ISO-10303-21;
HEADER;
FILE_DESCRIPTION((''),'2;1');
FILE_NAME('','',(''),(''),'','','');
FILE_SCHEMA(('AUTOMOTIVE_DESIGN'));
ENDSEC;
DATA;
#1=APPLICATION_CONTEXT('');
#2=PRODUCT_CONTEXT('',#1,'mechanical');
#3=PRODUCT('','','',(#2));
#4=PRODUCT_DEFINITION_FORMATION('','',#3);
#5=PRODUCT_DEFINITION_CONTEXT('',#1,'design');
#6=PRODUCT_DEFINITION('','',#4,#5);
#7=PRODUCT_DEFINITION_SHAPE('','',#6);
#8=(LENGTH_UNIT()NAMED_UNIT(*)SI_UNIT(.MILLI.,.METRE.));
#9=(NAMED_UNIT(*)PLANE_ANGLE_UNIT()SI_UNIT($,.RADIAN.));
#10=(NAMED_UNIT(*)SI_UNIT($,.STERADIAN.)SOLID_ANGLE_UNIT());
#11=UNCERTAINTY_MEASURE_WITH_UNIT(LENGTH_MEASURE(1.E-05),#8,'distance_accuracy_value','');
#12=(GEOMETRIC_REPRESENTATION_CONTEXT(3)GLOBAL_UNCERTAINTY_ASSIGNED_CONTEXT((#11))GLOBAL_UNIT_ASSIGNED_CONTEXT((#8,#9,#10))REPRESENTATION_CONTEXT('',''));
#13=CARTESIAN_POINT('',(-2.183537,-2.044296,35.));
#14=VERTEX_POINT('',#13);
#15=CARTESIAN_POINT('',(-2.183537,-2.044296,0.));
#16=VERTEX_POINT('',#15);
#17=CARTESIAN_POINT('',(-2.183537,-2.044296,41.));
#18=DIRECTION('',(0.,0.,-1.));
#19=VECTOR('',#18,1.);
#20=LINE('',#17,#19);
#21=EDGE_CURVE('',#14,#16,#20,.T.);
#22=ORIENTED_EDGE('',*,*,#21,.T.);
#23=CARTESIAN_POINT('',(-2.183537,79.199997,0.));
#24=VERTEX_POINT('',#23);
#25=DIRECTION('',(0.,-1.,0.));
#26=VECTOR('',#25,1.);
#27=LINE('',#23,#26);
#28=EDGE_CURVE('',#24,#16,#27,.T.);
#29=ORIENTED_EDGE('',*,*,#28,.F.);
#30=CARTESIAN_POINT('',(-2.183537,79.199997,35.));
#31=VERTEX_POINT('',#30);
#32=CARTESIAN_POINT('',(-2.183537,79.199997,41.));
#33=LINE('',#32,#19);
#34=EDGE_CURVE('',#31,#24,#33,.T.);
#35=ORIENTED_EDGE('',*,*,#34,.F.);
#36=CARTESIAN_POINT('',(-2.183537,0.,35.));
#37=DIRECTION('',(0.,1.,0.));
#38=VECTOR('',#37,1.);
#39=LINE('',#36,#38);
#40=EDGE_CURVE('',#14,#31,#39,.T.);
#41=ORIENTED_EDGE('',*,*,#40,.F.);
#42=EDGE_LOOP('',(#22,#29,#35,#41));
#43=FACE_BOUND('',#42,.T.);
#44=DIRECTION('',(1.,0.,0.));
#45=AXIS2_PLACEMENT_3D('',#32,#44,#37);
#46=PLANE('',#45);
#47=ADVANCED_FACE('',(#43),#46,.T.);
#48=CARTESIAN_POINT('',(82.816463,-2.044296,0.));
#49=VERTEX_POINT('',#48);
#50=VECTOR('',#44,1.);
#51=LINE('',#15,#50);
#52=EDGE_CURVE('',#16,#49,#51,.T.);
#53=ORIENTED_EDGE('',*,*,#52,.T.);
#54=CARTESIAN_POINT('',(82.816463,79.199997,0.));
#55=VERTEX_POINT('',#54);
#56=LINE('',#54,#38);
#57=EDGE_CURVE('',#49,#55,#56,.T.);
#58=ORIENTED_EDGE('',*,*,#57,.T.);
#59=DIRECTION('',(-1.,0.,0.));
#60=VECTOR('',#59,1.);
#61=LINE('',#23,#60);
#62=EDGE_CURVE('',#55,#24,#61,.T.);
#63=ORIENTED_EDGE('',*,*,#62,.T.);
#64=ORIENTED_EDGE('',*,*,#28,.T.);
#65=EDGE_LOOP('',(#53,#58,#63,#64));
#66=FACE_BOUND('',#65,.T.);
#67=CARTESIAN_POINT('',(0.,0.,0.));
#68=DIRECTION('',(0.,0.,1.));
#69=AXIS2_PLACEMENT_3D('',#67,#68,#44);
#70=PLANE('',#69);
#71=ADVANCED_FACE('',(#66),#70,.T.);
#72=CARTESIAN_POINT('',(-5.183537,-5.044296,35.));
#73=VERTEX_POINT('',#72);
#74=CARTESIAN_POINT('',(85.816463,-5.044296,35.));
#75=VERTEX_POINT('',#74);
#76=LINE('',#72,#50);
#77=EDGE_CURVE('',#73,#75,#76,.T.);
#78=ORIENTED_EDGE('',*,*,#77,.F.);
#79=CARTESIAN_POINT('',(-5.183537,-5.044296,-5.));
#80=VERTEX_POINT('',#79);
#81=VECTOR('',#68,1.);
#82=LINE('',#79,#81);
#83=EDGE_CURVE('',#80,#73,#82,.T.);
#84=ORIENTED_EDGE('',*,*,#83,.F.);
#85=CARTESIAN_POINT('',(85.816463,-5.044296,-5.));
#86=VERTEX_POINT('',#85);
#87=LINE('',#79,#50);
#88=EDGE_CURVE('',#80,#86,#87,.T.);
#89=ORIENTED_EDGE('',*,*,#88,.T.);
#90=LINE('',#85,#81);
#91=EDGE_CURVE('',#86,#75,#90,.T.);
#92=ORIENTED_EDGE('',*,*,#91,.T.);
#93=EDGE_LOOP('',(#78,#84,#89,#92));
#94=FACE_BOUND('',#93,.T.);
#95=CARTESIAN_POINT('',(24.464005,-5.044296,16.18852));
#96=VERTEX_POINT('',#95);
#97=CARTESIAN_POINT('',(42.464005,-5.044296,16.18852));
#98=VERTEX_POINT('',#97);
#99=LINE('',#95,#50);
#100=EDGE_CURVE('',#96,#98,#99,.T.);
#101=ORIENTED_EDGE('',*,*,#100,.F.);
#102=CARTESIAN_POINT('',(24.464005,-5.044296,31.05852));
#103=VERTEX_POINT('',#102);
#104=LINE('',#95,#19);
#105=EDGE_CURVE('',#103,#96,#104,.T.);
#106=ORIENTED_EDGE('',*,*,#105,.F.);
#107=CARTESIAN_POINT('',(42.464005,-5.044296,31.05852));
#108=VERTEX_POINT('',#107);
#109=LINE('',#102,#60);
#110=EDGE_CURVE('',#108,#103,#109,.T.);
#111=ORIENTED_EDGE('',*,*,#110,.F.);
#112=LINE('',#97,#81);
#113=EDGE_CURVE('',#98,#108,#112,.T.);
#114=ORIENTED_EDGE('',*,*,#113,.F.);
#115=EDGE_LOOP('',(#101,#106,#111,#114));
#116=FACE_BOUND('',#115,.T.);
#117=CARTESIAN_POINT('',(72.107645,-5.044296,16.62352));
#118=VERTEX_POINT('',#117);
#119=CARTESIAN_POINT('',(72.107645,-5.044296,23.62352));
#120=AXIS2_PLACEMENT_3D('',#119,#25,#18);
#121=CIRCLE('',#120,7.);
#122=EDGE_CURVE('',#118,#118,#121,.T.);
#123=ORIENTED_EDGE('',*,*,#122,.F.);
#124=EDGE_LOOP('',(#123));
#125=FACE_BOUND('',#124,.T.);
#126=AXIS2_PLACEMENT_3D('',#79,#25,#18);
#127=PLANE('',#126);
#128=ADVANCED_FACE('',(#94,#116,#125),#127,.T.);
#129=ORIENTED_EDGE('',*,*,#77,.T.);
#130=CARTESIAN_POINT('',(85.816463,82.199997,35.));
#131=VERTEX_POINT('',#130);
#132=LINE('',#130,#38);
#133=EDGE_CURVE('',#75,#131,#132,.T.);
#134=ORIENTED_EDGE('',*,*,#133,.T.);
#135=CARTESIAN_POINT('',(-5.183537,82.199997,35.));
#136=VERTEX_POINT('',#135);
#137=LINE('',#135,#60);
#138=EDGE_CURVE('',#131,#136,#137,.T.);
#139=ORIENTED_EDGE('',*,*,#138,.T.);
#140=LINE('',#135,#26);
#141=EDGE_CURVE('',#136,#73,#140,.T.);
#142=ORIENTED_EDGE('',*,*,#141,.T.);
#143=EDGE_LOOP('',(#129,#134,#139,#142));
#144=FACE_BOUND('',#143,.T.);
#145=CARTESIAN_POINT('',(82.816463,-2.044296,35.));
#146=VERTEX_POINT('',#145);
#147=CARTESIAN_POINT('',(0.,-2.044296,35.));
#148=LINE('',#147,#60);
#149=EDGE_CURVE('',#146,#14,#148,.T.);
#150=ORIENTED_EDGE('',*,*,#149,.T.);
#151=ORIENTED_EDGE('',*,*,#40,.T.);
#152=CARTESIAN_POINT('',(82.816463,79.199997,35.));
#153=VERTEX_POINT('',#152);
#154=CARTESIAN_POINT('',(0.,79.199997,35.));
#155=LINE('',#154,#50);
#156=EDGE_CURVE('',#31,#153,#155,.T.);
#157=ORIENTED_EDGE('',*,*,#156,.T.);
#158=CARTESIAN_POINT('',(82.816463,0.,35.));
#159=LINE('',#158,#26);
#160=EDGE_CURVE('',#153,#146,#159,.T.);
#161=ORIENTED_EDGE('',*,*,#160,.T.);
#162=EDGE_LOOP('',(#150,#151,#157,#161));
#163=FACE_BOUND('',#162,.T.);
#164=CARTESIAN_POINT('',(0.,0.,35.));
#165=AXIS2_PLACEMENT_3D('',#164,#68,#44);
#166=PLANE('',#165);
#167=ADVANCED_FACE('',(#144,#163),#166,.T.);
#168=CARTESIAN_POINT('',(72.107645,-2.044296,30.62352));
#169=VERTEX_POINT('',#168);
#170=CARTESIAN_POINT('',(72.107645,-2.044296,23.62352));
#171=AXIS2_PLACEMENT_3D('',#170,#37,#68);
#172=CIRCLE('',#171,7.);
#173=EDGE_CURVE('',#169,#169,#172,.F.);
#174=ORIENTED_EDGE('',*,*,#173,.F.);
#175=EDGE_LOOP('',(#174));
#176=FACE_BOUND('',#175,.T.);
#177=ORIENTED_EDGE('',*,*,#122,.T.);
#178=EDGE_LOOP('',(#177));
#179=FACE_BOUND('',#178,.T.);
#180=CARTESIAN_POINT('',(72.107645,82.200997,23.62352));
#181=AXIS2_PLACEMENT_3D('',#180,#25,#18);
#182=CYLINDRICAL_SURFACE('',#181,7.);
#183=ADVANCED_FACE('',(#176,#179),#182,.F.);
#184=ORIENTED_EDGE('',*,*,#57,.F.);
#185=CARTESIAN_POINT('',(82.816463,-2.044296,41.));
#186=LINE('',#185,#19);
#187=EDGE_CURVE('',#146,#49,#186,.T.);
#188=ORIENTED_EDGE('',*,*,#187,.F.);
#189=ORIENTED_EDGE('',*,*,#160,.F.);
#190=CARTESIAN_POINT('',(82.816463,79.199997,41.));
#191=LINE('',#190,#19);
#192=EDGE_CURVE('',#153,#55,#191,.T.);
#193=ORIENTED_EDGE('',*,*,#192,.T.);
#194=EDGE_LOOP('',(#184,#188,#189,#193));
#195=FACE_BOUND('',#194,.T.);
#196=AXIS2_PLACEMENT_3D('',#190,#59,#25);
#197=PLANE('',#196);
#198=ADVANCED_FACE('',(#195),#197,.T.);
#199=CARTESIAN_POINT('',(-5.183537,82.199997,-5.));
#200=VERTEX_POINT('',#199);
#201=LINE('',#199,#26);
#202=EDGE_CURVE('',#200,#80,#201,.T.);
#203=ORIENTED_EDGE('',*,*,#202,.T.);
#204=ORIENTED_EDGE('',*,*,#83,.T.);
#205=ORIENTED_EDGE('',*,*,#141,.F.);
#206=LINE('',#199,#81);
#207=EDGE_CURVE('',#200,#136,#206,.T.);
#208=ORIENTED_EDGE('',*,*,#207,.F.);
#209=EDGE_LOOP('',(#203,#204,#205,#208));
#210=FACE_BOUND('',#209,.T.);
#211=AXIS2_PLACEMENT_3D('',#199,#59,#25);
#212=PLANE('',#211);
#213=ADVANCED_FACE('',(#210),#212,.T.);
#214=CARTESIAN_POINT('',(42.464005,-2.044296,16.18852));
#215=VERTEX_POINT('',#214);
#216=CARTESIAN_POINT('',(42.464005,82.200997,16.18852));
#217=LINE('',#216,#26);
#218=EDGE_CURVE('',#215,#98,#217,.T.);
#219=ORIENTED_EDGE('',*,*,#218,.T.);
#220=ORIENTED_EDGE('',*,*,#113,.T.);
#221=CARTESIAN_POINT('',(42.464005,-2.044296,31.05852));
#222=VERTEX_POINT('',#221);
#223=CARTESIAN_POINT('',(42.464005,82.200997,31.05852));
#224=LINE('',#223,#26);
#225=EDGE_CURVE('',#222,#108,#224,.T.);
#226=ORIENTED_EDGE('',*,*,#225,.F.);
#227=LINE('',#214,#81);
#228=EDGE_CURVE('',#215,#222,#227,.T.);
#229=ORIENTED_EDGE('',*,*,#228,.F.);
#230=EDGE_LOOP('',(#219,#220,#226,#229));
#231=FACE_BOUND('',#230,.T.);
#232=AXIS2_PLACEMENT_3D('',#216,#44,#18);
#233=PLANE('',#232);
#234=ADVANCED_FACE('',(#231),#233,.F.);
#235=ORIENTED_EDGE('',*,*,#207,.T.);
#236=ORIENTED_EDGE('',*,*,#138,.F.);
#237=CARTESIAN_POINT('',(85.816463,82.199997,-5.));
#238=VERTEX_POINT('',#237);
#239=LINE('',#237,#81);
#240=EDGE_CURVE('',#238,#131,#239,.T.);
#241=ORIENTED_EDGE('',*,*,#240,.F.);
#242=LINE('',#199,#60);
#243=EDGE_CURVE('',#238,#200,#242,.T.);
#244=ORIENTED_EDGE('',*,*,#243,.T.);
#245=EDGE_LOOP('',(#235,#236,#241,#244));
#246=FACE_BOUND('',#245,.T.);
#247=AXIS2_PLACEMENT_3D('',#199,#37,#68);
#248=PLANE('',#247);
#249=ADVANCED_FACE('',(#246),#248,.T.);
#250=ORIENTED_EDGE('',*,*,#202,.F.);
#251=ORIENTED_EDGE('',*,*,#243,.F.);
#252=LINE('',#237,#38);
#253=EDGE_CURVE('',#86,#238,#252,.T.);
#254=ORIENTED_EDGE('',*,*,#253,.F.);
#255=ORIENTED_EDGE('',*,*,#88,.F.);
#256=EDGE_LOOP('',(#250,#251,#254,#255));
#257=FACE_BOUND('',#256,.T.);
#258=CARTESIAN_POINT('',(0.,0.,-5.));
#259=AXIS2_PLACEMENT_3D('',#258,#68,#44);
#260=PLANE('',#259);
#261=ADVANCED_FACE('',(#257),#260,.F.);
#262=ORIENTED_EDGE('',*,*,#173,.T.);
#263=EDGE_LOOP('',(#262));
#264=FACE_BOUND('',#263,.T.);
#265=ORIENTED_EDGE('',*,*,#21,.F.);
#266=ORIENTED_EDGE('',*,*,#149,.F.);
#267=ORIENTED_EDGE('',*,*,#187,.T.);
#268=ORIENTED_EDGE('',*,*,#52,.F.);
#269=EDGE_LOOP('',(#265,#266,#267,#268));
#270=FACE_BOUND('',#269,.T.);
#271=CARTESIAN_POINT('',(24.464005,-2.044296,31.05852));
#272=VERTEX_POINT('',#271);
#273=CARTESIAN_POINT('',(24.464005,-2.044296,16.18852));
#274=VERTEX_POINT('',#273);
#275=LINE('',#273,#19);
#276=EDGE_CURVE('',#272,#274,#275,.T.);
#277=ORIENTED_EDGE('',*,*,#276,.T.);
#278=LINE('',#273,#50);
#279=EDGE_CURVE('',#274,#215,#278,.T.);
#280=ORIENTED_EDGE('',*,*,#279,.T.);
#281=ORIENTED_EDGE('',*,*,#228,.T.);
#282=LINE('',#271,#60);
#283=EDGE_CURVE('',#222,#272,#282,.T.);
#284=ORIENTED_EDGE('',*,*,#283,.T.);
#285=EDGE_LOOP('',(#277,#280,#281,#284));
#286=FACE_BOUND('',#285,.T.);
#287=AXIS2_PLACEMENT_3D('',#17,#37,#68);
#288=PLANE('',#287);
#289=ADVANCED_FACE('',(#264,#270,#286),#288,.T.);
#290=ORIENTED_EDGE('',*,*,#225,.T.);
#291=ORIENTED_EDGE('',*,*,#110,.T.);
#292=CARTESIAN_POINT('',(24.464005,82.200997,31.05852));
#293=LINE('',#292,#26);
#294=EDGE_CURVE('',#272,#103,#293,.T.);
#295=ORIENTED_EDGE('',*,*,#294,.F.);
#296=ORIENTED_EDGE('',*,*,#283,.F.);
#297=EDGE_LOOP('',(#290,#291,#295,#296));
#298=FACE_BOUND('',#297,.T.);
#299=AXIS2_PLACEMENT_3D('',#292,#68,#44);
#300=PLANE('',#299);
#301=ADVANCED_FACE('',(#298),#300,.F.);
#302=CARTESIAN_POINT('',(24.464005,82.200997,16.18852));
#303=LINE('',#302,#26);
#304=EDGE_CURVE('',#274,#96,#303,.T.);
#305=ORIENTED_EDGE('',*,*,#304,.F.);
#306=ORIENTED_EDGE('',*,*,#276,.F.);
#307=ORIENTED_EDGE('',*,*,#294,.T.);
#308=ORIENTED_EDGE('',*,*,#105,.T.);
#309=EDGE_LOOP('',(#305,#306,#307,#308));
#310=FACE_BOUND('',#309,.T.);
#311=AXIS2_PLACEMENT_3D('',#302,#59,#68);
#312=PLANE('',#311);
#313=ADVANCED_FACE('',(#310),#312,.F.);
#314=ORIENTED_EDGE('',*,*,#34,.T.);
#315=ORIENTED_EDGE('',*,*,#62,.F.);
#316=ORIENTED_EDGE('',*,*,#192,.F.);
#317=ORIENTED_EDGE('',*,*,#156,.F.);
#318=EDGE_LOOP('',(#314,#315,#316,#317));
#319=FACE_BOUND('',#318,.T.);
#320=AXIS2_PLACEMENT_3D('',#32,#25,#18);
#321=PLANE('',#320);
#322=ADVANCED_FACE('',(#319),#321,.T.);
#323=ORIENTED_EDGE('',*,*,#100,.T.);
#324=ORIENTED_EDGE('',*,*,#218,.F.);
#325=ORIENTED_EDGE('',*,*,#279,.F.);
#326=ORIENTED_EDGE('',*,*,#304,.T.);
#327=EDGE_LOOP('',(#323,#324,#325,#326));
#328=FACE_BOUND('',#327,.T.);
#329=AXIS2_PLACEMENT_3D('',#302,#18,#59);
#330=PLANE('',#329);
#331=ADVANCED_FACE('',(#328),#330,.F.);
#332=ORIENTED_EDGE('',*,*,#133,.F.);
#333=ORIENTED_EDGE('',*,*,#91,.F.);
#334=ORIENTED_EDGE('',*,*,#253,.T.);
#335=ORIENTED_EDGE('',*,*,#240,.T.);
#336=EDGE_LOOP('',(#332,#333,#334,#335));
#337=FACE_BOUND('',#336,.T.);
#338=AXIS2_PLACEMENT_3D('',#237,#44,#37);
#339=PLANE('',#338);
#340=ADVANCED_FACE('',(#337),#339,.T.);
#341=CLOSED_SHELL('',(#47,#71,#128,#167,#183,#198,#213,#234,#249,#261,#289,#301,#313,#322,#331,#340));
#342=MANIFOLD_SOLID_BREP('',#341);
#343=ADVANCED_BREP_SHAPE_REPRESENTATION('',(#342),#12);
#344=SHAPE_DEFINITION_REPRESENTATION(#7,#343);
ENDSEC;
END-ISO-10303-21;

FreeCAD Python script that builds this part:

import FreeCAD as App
import Part
import Sketcher

V = App.Vector
Q = App.Units.Quantity

doc = App.newDocument("Part")
body = doc.addObject("PartDesign::Body", "Body")

# Sketch on XY plane
sketch1 = body.newObject("Sketcher::SketchObject", "Sketch")
sketch1.AttachmentSupport = (doc.getObject("XY_Plane"), [""])
sketch1.MapMode = "FlatFace"
sketch1.addGeometry([
    Part.LineSegment(V(-5, 82, 0), V(-5, -5, 0)),
    Part.LineSegment(V(-5, -5, 0), V(86, -5, 0)),
    Part.LineSegment(V(86, -5, 0), V(86, 82, 0)),
    Part.LineSegment(V(86, 82, 0), V(-5, 82, 0)),
], False)
sketch1.addConstraint([
    Sketcher.Constraint("Coincident", 0, 2, 1, 1),
    Sketcher.Constraint("Coincident", 1, 2, 2, 1),
    Sketcher.Constraint("Coincident", 2, 2, 3, 1),
    Sketcher.Constraint("Coincident", 3, 2, 0, 1),
    Sketcher.Constraint("Vertical", 0),
    Sketcher.Constraint("Horizontal", 1),
    Sketcher.Constraint("Vertical", 2),
    Sketcher.Constraint("Horizontal", 3),
    Sketcher.Constraint("DistanceX", 1, 1, 1, 2, Q("91 mm")),
    Sketcher.Constraint("DistanceY", 0, 2, 0, 1, Q("87.244293 mm")),
    Sketcher.Constraint("DistanceX", 0, 2, -1, 1, Q("5.183537 mm")),
    Sketcher.Constraint("DistanceY", 0, 2, -1, 1, Q("5.044296 mm")),
])
pad1 = body.newObject("PartDesign::Pad", "Pad")
pad1.Profile = sketch1
pad1.Type = "TwoLengths"
pad1.Length = 35
pad1.Length2 = 5

# Sketch on XY plane
sketch2 = body.newObject("Sketcher::SketchObject", "Sketch001")
sketch2.AttachmentSupport = (doc.getObject("XY_Plane"), [""])
sketch2.MapMode = "FlatFace"
sketch2.addGeometry([
    Part.LineSegment(V(-2, 79, 0), V(-2, -2, 0)),
    Part.LineSegment(V(-2, -2, 0), V(83, -2, 0)),
    Part.LineSegment(V(83, -2, 0), V(83, 79, 0)),
    Part.LineSegment(V(83, 79, 0), V(-2, 79, 0)),
], False)
sketch2.addConstraint([
    Sketcher.Constraint("Coincident", 0, 2, 1, 1),
    Sketcher.Constraint("Coincident", 1, 2, 2, 1),
    Sketcher.Constraint("Coincident", 2, 2, 3, 1),
    Sketcher.Constraint("Coincident", 3, 2, 0, 1),
    Sketcher.Constraint("Vertical", 0),
    Sketcher.Constraint("Horizontal", 1),
    Sketcher.Constraint("Vertical", 2),
    Sketcher.Constraint("Horizontal", 3),
    Sketcher.Constraint("DistanceX", 1, 1, 1, 2, Q("85 mm")),
    Sketcher.Constraint("DistanceY", 0, 2, 0, 1, Q("81.244293 mm")),
    Sketcher.Constraint("DistanceX", 0, 2, -1, 1, Q("2.183537 mm")),
    Sketcher.Constraint("DistanceY", 0, 2, -1, 1, Q("2.044296 mm")),
])
pocket1 = body.newObject("PartDesign::Pocket", "Pocket")
pocket1.Profile = sketch2
pocket1.Length = 41
pocket1.Reversed = True

# Sketch on XZ plane
sketch3 = body.newObject("Sketcher::SketchObject", "Sketch002")
sketch3.AttachmentSupport = (doc.getObject("XZ_Plane"), [""])
sketch3.MapMode = "FlatFace"
sketch3.AttachmentOffset = App.Placement(V(0, 0, 5.044296), App.Rotation())
sketch3.addGeometry(Part.Circle(V(72, 24, 0), V(0, 0, 1), 7), False)
sketch3.addConstraint([
    Sketcher.Constraint("Diameter", 0, Q("14 mm")),
    Sketcher.Constraint("DistanceY", -1, 1, 0, 3, Q("23.62352 mm")),
    Sketcher.Constraint("DistanceX", -1, 1, 0, 3, Q("72.107645 mm")),
])
pocket2 = body.newObject("PartDesign::Pocket", "Pocket001")
pocket2.Profile = sketch3
pocket2.Type = "UpToFirst"

# Sketch on XZ plane
sketch4 = body.newObject("Sketcher::SketchObject", "Sketch003")
sketch4.AttachmentSupport = (doc.getObject("XZ_Plane"), [""])
sketch4.MapMode = "FlatFace"
sketch4.AttachmentOffset = App.Placement(V(0, 0, 5.044296), App.Rotation())
sketch4.addGeometry([
    Part.LineSegment(V(24, 31, 0), V(24, 16, 0)),
    Part.LineSegment(V(24, 16, 0), V(42, 16, 0)),
    Part.LineSegment(V(42, 16, 0), V(42, 31, 0)),
    Part.LineSegment(V(42, 31, 0), V(24, 31, 0)),
], False)
sketch4.addConstraint([
    Sketcher.Constraint("Coincident", 0, 2, 1, 1),
    Sketcher.Constraint("Coincident", 1, 2, 2, 1),
    Sketcher.Constraint("Coincident", 2, 2, 3, 1),
    Sketcher.Constraint("Coincident", 3, 2, 0, 1),
    Sketcher.Constraint("Vertical", 0),
    Sketcher.Constraint("Horizontal", 1),
    Sketcher.Constraint("Vertical", 2),
    Sketcher.Constraint("Horizontal", 3),
    Sketcher.Constraint("DistanceX", 1, 1, 1, 2, Q("18 mm")),
    Sketcher.Constraint("DistanceY", 0, 2, 0, 1, Q("14.87 mm")),
    Sketcher.Constraint("DistanceY", -1, 1, 0, 2, Q("16.18852 mm")),
    Sketcher.Constraint("DistanceX", -1, 1, 0, 2, Q("24.464005 mm")),
])
pocket3 = body.newObject("PartDesign::Pocket", "Pocket002")
pocket3.Profile = sketch4
pocket3.Type = "UpToFirst"

doc.recompute()
